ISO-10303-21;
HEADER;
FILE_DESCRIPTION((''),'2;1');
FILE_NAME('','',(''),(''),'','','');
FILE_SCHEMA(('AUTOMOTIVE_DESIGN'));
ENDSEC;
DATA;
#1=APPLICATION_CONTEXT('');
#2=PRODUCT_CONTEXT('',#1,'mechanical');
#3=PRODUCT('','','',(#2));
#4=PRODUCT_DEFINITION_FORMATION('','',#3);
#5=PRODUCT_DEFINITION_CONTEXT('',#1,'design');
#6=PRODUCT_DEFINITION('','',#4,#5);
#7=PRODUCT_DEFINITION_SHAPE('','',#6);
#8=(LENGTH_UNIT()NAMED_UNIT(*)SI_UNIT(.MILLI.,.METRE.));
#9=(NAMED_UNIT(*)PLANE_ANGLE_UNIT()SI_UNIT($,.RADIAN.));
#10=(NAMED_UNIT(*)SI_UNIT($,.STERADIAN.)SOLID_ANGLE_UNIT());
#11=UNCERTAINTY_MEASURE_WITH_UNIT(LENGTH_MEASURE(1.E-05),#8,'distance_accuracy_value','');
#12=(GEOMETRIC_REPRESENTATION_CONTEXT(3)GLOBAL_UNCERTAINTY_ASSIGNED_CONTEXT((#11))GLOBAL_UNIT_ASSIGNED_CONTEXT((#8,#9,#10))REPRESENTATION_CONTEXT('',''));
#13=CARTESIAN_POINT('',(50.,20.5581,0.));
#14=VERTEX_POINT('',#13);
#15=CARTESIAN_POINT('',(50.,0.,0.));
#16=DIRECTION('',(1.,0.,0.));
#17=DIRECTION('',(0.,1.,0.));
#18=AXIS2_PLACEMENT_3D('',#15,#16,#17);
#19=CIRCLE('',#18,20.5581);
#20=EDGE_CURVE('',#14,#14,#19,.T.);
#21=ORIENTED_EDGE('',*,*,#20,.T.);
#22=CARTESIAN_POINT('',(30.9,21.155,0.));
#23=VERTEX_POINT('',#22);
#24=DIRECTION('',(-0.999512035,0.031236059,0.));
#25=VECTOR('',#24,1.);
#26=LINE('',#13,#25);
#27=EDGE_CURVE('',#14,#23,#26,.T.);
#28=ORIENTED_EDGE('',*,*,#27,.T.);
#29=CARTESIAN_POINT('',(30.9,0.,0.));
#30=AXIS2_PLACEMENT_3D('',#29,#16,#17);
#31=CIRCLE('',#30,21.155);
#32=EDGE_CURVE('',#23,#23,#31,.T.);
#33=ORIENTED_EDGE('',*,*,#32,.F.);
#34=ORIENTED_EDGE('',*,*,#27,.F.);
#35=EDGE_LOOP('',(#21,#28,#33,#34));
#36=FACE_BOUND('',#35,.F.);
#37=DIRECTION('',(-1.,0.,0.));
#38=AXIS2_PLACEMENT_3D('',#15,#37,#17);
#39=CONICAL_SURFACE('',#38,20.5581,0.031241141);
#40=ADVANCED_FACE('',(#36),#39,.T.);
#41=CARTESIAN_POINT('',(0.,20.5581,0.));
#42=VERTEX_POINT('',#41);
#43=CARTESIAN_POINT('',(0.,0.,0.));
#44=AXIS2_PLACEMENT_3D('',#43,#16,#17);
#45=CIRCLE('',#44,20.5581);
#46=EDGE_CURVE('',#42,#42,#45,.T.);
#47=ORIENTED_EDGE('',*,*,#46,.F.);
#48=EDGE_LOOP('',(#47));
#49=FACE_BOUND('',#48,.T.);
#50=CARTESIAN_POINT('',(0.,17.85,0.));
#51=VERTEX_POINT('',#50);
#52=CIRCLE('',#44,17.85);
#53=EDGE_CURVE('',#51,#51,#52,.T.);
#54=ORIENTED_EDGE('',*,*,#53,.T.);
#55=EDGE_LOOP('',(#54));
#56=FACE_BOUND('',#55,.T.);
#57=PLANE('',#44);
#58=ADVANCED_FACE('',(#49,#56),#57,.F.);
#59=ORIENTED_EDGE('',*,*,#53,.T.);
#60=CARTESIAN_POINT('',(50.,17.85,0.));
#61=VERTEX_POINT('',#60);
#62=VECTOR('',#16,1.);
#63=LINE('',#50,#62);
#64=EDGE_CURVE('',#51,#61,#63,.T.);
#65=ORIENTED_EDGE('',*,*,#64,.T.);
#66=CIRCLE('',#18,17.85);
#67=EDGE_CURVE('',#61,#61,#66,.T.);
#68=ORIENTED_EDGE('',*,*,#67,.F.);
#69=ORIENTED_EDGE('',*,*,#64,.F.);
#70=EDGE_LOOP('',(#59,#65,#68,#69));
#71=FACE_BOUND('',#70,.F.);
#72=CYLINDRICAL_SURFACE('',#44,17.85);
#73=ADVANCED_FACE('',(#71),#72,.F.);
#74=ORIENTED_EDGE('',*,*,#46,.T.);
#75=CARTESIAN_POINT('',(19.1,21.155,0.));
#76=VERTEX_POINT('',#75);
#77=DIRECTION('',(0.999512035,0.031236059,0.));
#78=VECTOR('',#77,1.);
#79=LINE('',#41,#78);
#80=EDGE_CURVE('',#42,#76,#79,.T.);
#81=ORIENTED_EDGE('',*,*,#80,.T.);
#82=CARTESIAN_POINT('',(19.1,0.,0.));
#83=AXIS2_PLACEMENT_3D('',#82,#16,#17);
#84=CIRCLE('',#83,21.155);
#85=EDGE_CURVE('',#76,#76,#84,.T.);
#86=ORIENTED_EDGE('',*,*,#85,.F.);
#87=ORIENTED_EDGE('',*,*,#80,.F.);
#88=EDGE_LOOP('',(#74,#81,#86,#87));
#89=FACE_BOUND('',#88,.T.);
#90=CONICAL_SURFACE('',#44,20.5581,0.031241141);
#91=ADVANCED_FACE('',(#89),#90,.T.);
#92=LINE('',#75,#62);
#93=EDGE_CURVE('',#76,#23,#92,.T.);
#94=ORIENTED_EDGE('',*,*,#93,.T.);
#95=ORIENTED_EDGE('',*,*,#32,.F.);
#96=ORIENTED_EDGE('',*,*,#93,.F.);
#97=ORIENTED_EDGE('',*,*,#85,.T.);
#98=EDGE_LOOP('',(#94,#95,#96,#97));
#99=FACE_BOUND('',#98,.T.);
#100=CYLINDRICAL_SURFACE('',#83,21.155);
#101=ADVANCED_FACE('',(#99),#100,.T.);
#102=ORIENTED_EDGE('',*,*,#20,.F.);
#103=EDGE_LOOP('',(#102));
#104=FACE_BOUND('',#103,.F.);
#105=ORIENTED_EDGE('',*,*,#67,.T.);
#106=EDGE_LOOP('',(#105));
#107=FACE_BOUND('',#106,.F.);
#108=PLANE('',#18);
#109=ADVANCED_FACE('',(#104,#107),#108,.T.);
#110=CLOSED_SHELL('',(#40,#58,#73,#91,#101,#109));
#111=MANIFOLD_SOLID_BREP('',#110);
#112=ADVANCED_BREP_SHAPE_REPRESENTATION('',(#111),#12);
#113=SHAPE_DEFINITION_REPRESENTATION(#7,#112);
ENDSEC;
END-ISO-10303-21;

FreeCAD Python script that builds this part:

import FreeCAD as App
import Part
import Sketcher
from FreeCAD import Vector
Q = App.Units.Quantity

doc = App.newDocument("Part")
params = doc.addObject("Spreadsheet::Sheet", "Params")
for row, (alias, value) in enumerate([
    ("sketch1_width", "50 mm"),
    ("revolution_angle", "360 deg"),
], start=1):
    params.set(f"A{row}", alias)
    params.set(f"B{row}", "=" + value)
    params.setAlias(f"B{row}", alias)

body = doc.addObject("PartDesign::Body", "Body")

sketch1 = body.newObject("Sketcher::SketchObject", "Sketch")
sketch1.AttachmentSupport = (doc.getObject("XY_Plane"), [""])
sketch1.MapMode = "FlatFace"
sketch1.addGeometry(Part.LineSegment(Vector(0, 17.85, 0), Vector(50, 17.85, 0)), False)
sketch1.addGeometry(Part.LineSegment(Vector(50, 17.85, 0), Vector(50, 20.5581, 0)), False)
sketch1.addGeometry(Part.LineSegment(Vector(50, 20.5581, 0), Vector(30.9, 21.155, 0)), False)
sketch1.addGeometry(Part.LineSegment(Vector(30.9, 21.155, 0), Vector(19.1, 21.155, 0)), False)
sketch1.addGeometry(Part.LineSegment(Vector(19.1, 21.155, 0), Vector(0, 20.5581, 0)), False)
sketch1.addGeometry(Part.LineSegment(Vector(0, 20.5581, 0), Vector(0, 17.85, 0)), False)
sketch1.addConstraint(Sketcher.Constraint("Coincident", 0, 2, 1, 1))
sketch1.addConstraint(Sketcher.Constraint("Coincident", 1, 2, 2, 1))
sketch1.addConstraint(Sketcher.Constraint("Coincident", 2, 2, 3, 1))
sketch1.addConstraint(Sketcher.Constraint("Coincident", 3, 2, 4, 1))
sketch1.addConstraint(Sketcher.Constraint("Coincident", 4, 2, 5, 1))
sketch1.addConstraint(Sketcher.Constraint("Coincident", 5, 2, 0, 1))
sketch1.addConstraint(Sketcher.Constraint("Horizontal", 0))
sketch1.addConstraint(Sketcher.Constraint("Vertical", 1))
sketch1.addConstraint(Sketcher.Constraint("Horizontal", 3))
sketch1.addConstraint(Sketcher.Constraint("Vertical", 5))
sketch1.addConstraint(Sketcher.Constraint("PointOnObject", 4, 2, -2))
sketch1.addConstraint(Sketcher.Constraint("Horizontal", 1, 2, 4, 2))
sketch1.addConstraint(Sketcher.Constraint("Equal", 2, 4))
sketch1.addConstraint(Sketcher.Constraint("DistanceX", 0, 1, 0, 2, 50.0))
sketch1.addConstraint(Sketcher.Constraint("DistanceX", -1, 1, 3, 2, 19.1))
sketch1.addConstraint(Sketcher.Constraint("Angle", 2, Q("178.21 deg")))
sketch1.addConstraint(Sketcher.Constraint("DistanceY", 1, 1, 1, 2, 2.708))
sketch1.addConstraint(Sketcher.Constraint("DistanceY", -1, 1, 0, 2, 17.85))
sketch1.setExpression("Constraints[13]", "Params.sketch1_width")
revolution = body.newObject("PartDesign::Revolution", "Revolution")
revolution.Profile = sketch1
revolution.ReferenceAxis = (sketch1, ["H_Axis"])
revolution.setExpression("Angle", "Params.revolution_angle")

doc.recompute()
